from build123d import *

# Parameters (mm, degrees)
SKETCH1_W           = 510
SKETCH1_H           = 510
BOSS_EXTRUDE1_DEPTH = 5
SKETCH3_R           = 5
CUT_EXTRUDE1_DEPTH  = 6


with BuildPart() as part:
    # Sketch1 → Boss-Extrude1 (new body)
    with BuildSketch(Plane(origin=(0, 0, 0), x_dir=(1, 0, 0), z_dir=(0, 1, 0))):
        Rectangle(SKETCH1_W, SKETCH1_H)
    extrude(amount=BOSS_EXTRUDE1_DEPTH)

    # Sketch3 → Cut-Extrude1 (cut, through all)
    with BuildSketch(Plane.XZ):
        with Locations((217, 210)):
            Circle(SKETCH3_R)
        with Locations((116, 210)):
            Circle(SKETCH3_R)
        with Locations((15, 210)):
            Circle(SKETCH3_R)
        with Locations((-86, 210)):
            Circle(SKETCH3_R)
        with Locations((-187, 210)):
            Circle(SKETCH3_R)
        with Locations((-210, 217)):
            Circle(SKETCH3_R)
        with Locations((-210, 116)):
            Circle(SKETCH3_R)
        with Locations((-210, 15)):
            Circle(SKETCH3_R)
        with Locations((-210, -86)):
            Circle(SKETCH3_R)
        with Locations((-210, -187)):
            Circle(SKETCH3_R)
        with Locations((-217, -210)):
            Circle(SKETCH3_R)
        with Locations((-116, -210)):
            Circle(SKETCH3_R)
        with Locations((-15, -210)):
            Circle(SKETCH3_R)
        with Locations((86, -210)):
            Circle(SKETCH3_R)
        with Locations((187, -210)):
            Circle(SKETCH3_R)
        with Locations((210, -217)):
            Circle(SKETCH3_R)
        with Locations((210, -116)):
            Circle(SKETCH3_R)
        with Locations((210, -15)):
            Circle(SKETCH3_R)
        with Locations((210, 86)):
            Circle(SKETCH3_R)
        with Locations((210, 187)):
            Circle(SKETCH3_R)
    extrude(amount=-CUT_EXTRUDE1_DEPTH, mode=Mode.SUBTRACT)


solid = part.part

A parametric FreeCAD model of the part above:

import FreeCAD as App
import Part
import Sketcher

V = App.Vector
Q = App.Units.Quantity

doc = App.newDocument("Part")
body = doc.addObject("PartDesign::Body", "Body")

# Sketch on XZ plane
sketch1 = body.newObject("Sketcher::SketchObject", "Sketch")
sketch1.AttachmentSupport = (doc.getObject("XZ_Plane"), [""])
sketch1.MapMode = "FlatFace"
sketch1.addGeometry(Part.LineSegment(V(-255, -255, 0), V(-255, 255, 0)), False)
sketch1.addGeometry(Part.LineSegment(V(-255, 255, 0), V(255, 255, 0)), False)
sketch1.addGeometry(Part.LineSegment(V(255, 255, 0), V(255, -255, 0)), False)
sketch1.addGeometry(Part.LineSegment(V(255, -255, 0), V(-255, -255, 0)), False)
sketch1.addConstraint(Sketcher.Constraint("Coincident", 0, 2, 1, 1))
sketch1.addConstraint(Sketcher.Constraint("Coincident", 1, 2, 2, 1))
sketch1.addConstraint(Sketcher.Constraint("Coincident", 2, 2, 3, 1))
sketch1.addConstraint(Sketcher.Constraint("Coincident", 3, 2, 0, 1))
sketch1.addConstraint(Sketcher.Constraint("Vertical", 0))
sketch1.addConstraint(Sketcher.Constraint("Horizontal", 1))
sketch1.addConstraint(Sketcher.Constraint("Vertical", 2))
sketch1.addConstraint(Sketcher.Constraint("Horizontal", 3))
sketch1.addConstraint(Sketcher.Constraint("Symmetric", 0, 2, 2, 2, -1, 1))
sketch1.addConstraint(Sketcher.Constraint("Equal", 3, 0))
sketch1.addConstraint(Sketcher.Constraint("DistanceX", 1, 1, 1, 2, Q("510 mm")))
pad1 = body.newObject("PartDesign::Pad", "Pad")
pad1.Profile = sketch1
pad1.Length = 5
pad1.Reversed = True

# Sketch on XZ plane
sketch2 = body.newObject("Sketcher::SketchObject", "Sketch001")
sketch2.AttachmentSupport = (doc.getObject("XZ_Plane"), [""])
sketch2.MapMode = "FlatFace"
sketch2.addGeometry(Part.Circle(V(217, 210, 0), V(0, 0, 1), 5), False)
sketch2.addGeometry(Part.Circle(V(116, 210, 0), V(0, 0, 1), 5), False)
sketch2.addGeometry(Part.Circle(V(15, 210, 0), V(0, 0, 1), 5), False)
sketch2.addGeometry(Part.Circle(V(-86, 210, 0), V(0, 0, 1), 5), False)
sketch2.addGeometry(Part.Circle(V(-187, 210, 0), V(0, 0, 1), 5), False)
sketch2.addGeometry(Part.Circle(V(-210, 217, 0), V(0, 0, 1), 5), False)
sketch2.addGeometry(Part.Circle(V(-210, 116, 0), V(0, 0, 1), 5), False)
sketch2.addGeometry(Part.Circle(V(-210, 15, 0), V(0, 0, 1), 5), False)
sketch2.addGeometry(Part.Circle(V(-210, -86, 0), V(0, 0, 1), 5), False)
sketch2.addGeometry(Part.Circle(V(-210, -187, 0), V(0, 0, 1), 5), False)
sketch2.addGeometry(Part.Circle(V(-217, -210, 0), V(0, 0, 1), 5), False)
sketch2.addGeometry(Part.Circle(V(-116, -210, 0), V(0, 0, 1), 5), False)
sketch2.addGeometry(Part.Circle(V(-15, -210, 0), V(0, 0, 1), 5), False)
sketch2.addGeometry(Part.Circle(V(86, -210, 0), V(0, 0, 1), 5), False)
sketch2.addGeometry(Part.Circle(V(187, -210, 0), V(0, 0, 1), 5), False)
sketch2.addGeometry(Part.Circle(V(210, -217, 0), V(0, 0, 1), 5), False)
sketch2.addGeometry(Part.Circle(V(210, -116, 0), V(0, 0, 1), 5), False)
sketch2.addGeometry(Part.Circle(V(210, -15, 0), V(0, 0, 1), 5), False)
sketch2.addGeometry(Part.Circle(V(210, 86, 0), V(0, 0, 1), 5), False)
sketch2.addGeometry(Part.Circle(V(210, 187, 0), V(0, 0, 1), 5), False)
sketch2.addConstraint(Sketcher.Constraint("Equal", 0, 1))
sketch2.addConstraint(Sketcher.Constraint("Equal", 1, 2))
sketch2.addConstraint(Sketcher.Constraint("Equal", 2, 3))
sketch2.addConstraint(Sketcher.Constraint("Equal", 3, 4))
sketch2.addConstraint(Sketcher.Constraint("Equal", 4, 5))
sketch2.addConstraint(Sketcher.Constraint("Equal", 5, 6))
sketch2.addConstraint(Sketcher.Constraint("Equal", 6, 7))
sketch2.addConstraint(Sketcher.Constraint("Equal", 7, 8))
sketch2.addConstraint(Sketcher.Constraint("Equal", 8, 9))
sketch2.addConstraint(Sketcher.Constraint("Equal", 9, 10))
sketch2.addConstraint(Sketcher.Constraint("Equal", 10, 11))
sketch2.addConstraint(Sketcher.Constraint("Equal", 11, 12))
sketch2.addConstraint(Sketcher.Constraint("Equal", 12, 13))
sketch2.addConstraint(Sketcher.Constraint("Equal", 13, 14))
sketch2.addConstraint(Sketcher.Constraint("Equal", 14, 15))
sketch2.addConstraint(Sketcher.Constraint("Equal", 15, 16))
sketch2.addConstraint(Sketcher.Constraint("Equal", 16, 17))
sketch2.addConstraint(Sketcher.Constraint("Equal", 17, 18))
sketch2.addConstraint(Sketcher.Constraint("Equal", 18, 19))
sketch2.addConstraint(Sketcher.Constraint("Symmetric", 0, 3, 10, 3, -1, 1))
sketch2.addConstraint(Sketcher.Constraint("Symmetric", 1, 3, 11, 3, -1, 1))
sketch2.addConstraint(Sketcher.Constraint("Symmetric", 2, 3, 12, 3, -1, 1))
sketch2.addConstraint(Sketcher.Constraint("Symmetric", 3, 3, 13, 3, -1, 1))
sketch2.addConstraint(Sketcher.Constraint("Symmetric", 4, 3, 14, 3, -1, 1))
sketch2.addConstraint(Sketcher.Constraint("Symmetric", 5, 3, 15, 3, -1, 1))
sketch2.addConstraint(Sketcher.Constraint("Symmetric", 6, 3, 16, 3, -1, 1))
sketch2.addConstraint(Sketcher.Constraint("Symmetric", 7, 3, 17, 3, -1, 1))
sketch2.addConstraint(Sketcher.Constraint("Symmetric", 8, 3, 18, 3, -1, 1))
sketch2.addConstraint(Sketcher.Constraint("Symmetric", 9, 3, 19, 3, -1, 1))
sketch2.addConstraint(Sketcher.Constraint("Horizontal", 0, 3, 1, 3))
sketch2.addConstraint(Sketcher.Constraint("Horizontal", 1, 3, 2, 3))
sketch2.addConstraint(Sketcher.Constraint("Horizontal", 2, 3, 3, 3))
sketch2.addConstraint(Sketcher.Constraint("Horizontal", 3, 3, 4, 3))
sketch2.addConstraint(Sketcher.Constraint("Vertical", 5, 3, 6, 3))
sketch2.addConstraint(Sketcher.Constraint("Vertical", 6, 3, 7, 3))
sketch2.addConstraint(Sketcher.Constraint("Vertical", 7, 3, 8, 3))
sketch2.addConstraint(Sketcher.Constraint("Vertical", 8, 3, 9, 3))
sketch2.addConstraint(Sketcher.Constraint("Diameter", 0, Q("10 mm")))
sketch2.addConstraint(Sketcher.Constraint("DistanceX", -1, 1, 0, 3, Q("217 mm")))
sketch2.addConstraint(Sketcher.Constraint("DistanceY", -1, 1, 0, 3, Q("210 mm")))
sketch2.addConstraint(Sketcher.Constraint("DistanceX", -1, 1, 1, 3, Q("116 mm")))
sketch2.addConstraint(Sketcher.Constraint("DistanceX", -1, 1, 2, 3, Q("15 mm")))
sketch2.addConstraint(Sketcher.Constraint("DistanceX", 3, 3, -1, 1, Q("86 mm")))
sketch2.addConstraint(Sketcher.Constraint("DistanceX", 4, 3, -1, 1, Q("187 mm")))
sketch2.addConstraint(Sketcher.Constraint("DistanceX", 5, 3, -1, 1, Q("210 mm")))
sketch2.addConstraint(Sketcher.Constraint("DistanceY", -1, 1, 5, 3, Q("217 mm")))
sketch2.addConstraint(Sketcher.Constraint("DistanceY", -1, 1, 6, 3, Q("116 mm")))
sketch2.addConstraint(Sketcher.Constraint("DistanceY", -1, 1, 7, 3, Q("15 mm")))
sketch2.addConstraint(Sketcher.Constraint("DistanceY", 8, 3, -1, 1, Q("86 mm")))
sketch2.addConstraint(Sketcher.Constraint("DistanceY", 9, 3, -1, 1, Q("187 mm")))
pocket1 = body.newObject("PartDesign::Pocket", "Pocket")
pocket1.Profile = sketch2
pocket1.Type = "ThroughAll"

doc.recompute()
